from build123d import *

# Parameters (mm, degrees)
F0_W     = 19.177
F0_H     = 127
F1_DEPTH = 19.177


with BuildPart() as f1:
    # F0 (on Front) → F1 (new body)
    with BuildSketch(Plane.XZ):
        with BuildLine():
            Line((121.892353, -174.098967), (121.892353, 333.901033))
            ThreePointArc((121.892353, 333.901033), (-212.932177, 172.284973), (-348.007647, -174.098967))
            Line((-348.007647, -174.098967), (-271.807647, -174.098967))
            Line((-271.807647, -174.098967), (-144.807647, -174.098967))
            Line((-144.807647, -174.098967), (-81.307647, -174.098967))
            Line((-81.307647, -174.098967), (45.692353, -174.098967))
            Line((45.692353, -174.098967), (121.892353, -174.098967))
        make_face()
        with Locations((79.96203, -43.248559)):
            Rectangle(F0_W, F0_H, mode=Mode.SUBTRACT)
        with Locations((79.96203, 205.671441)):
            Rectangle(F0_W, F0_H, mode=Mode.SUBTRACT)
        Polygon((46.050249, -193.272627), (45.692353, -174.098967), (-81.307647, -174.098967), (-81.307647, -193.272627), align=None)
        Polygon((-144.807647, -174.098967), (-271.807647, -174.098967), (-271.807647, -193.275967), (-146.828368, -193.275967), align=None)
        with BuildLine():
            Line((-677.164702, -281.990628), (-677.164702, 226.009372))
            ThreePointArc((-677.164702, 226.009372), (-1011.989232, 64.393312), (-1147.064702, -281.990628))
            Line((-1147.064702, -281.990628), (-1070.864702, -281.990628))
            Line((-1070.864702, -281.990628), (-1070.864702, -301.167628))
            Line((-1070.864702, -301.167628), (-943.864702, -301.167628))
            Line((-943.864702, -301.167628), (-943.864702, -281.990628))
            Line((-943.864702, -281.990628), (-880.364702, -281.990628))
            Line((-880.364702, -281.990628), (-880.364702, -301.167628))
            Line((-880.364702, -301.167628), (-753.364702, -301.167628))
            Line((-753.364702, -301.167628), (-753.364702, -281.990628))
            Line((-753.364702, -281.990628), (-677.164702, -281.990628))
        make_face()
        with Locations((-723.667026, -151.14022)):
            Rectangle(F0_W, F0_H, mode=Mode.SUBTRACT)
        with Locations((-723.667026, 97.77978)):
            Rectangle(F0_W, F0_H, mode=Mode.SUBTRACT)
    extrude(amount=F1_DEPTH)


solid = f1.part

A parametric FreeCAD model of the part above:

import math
import FreeCAD as App
import Part
import Sketcher

V = App.Vector
Q = App.Units.Quantity

doc = App.newDocument("Part")
body = doc.addObject("PartDesign::Body", "Body")
body.AllowCompound = True

sketch1 = body.newObject("Sketcher::SketchObject", "Sketch")
sketch1.AttachmentSupport = (doc.getObject("XZ_Plane"), [""])
sketch1.MapMode = "FlatFace"
sketch1.addGeometry([
    Part.LineSegment(V(121.892353, -174.098967, 0), V(121.892353, 333.901033, 0)),
    Part.ArcOfCircle(Part.Circle(V(159.990338, -172.668353, 0), V(0, 0, 1), 507.999999), math.radians(94.300994), math.radians(180.161355)),
    Part.LineSegment(V(-348.007647, -174.098967, 0), V(-271.807647, -174.098967, 0)),
    Part.LineSegment(V(-271.807647, -174.098967, 0), V(-271.807647, -193.275967, 0)),
    Part.LineSegment(V(-271.807647, -193.275967, 0), V(-146.828368, -193.275967, 0)),
    Part.LineSegment(V(-146.828368, -193.275967, 0), V(-144.807647, -174.098967, 0)),
    Part.LineSegment(V(-144.807647, -174.098967, 0), V(-81.307647, -174.098967, 0)),
    Part.LineSegment(V(-81.307647, -174.098967, 0), V(-81.307647, -193.272627, 0)),
    Part.LineSegment(V(-81.307647, -193.272627, 0), V(46.050249, -193.272627, 0)),
    Part.LineSegment(V(46.050249, -193.272627, 0), V(45.692353, -174.098967, 0)),
    Part.LineSegment(V(45.692353, -174.098967, 0), V(121.892353, -174.098967, 0)),
    Part.LineSegment(V(89.55053, -106.748559, 0), V(70.37353, -106.748559, 0)),
    Part.LineSegment(V(70.37353, -106.748559, 0), V(70.37353, 20.251441, 0)),
    Part.LineSegment(V(70.37353, 20.251441, 0), V(89.55053, 20.251441, 0)),
    Part.LineSegment(V(89.55053, 20.251441, 0), V(89.55053, -106.748559, 0)),
    Part.LineSegment(V(89.55053, 142.171441, 0), V(70.37353, 142.171441, 0)),
    Part.LineSegment(V(70.37353, 142.171441, 0), V(70.37353, 269.171441, 0)),
    Part.LineSegment(V(70.37353, 269.171441, 0), V(89.55053, 269.171441, 0)),
    Part.LineSegment(V(89.55053, 269.171441, 0), V(89.55053, 142.171441, 0)),
    Part.LineSegment(V(-677.164702, -281.990628, 0), V(-677.164702, 226.009372, 0)),
    Part.ArcOfCircle(Part.Circle(V(-639.066717, -280.560014, 0), V(0, 0, 1), 507.999999), math.radians(94.300994), math.radians(180.161355)),
    Part.LineSegment(V(-1147.064702, -281.990628, 0), V(-1070.864702, -281.990628, 0)),
    Part.LineSegment(V(-1070.864702, -281.990628, 0), V(-1070.864702, -301.167628, 0)),
    Part.LineSegment(V(-1070.864702, -301.167628, 0), V(-943.864702, -301.167628, 0)),
    Part.LineSegment(V(-943.864702, -301.167628, 0), V(-943.864702, -281.990628, 0)),
    Part.LineSegment(V(-943.864702, -281.990628, 0), V(-880.364702, -281.990628, 0)),
    Part.LineSegment(V(-880.364702, -281.990628, 0), V(-880.364702, -301.167628, 0)),
    Part.LineSegment(V(-880.364702, -301.167628, 0), V(-753.364702, -301.167628, 0)),
    Part.LineSegment(V(-753.364702, -301.167628, 0), V(-753.364702, -281.990628, 0)),
    Part.LineSegment(V(-753.364702, -281.990628, 0), V(-677.164702, -281.990628, 0)),
    Part.LineSegment(V(-714.078526, -214.64022, 0), V(-733.255526, -214.64022, 0)),
    Part.LineSegment(V(-733.255526, -214.64022, 0), V(-733.255526, -87.64022, 0)),
    Part.LineSegment(V(-733.255526, -87.64022, 0), V(-714.078526, -87.64022, 0)),
    Part.LineSegment(V(-714.078526, -87.64022, 0), V(-714.078526, -214.64022, 0)),
    Part.LineSegment(V(-714.078526, 34.27978, 0), V(-733.255526, 34.27978, 0)),
    Part.LineSegment(V(-733.255526, 34.27978, 0), V(-733.255526, 161.27978, 0)),
    Part.LineSegment(V(-733.255526, 161.27978, 0), V(-714.078526, 161.27978, 0)),
    Part.LineSegment(V(-714.078526, 161.27978, 0), V(-714.078526, 34.27978, 0)),
], False)
sketch1.addConstraint([
    Sketcher.Constraint("Coincident", 0, 2, 1, 1),
    Sketcher.Constraint("Coincident", 1, 2, 2, 1),
    Sketcher.Constraint("Coincident", 2, 2, 3, 1),
    Sketcher.Constraint("Coincident", 3, 2, 4, 1),
    Sketcher.Constraint("Coincident", 4, 2, 5, 1),
    Sketcher.Constraint("Coincident", 5, 2, 6, 1),
    Sketcher.Constraint("Coincident", 6, 2, 7, 1),
    Sketcher.Constraint("Coincident", 7, 2, 8, 1),
    Sketcher.Constraint("Coincident", 8, 2, 9, 1),
    Sketcher.Constraint("Coincident", 9, 2, 10, 1),
    Sketcher.Constraint("Coincident", 10, 2, 0, 1),
    Sketcher.Constraint("Coincident", 11, 2, 12, 1),
    Sketcher.Constraint("Coincident", 12, 2, 13, 1),
    Sketcher.Constraint("Coincident", 13, 2, 14, 1),
    Sketcher.Constraint("Coincident", 14, 2, 11, 1),
    Sketcher.Constraint("Coincident", 15, 2, 16, 1),
    Sketcher.Constraint("Coincident", 16, 2, 17, 1),
    Sketcher.Constraint("Coincident", 17, 2, 18, 1),
    Sketcher.Constraint("Coincident", 18, 2, 15, 1),
    Sketcher.Constraint("Coincident", 19, 2, 20, 1),
    Sketcher.Constraint("Coincident", 20, 2, 21, 1),
    Sketcher.Constraint("Coincident", 21, 2, 22, 1),
    Sketcher.Constraint("Coincident", 22, 2, 23, 1),
    Sketcher.Constraint("Coincident", 23, 2, 24, 1),
    Sketcher.Constraint("Coincident", 24, 2, 25, 1),
    Sketcher.Constraint("Coincident", 25, 2, 26, 1),
    Sketcher.Constraint("Coincident", 26, 2, 27, 1),
    Sketcher.Constraint("Coincident", 27, 2, 28, 1),
    Sketcher.Constraint("Coincident", 28, 2, 29, 1),
    Sketcher.Constraint("Coincident", 29, 2, 19, 1),
    Sketcher.Constraint("Coincident", 30, 2, 31, 1),
    Sketcher.Constraint("Coincident", 31, 2, 32, 1),
    Sketcher.Constraint("Coincident", 32, 2, 33, 1),
    Sketcher.Constraint("Coincident", 33, 2, 30, 1),
    Sketcher.Constraint("Coincident", 34, 2, 35, 1),
    Sketcher.Constraint("Coincident", 35, 2, 36, 1),
    Sketcher.Constraint("Coincident", 36, 2, 37, 1),
    Sketcher.Constraint("Coincident", 37, 2, 34, 1),
    Sketcher.Constraint("Vertical", 0),
    Sketcher.Constraint("Horizontal", 2),
    Sketcher.Constraint("Vertical", 3),
    Sketcher.Constraint("Horizontal", 4),
    Sketcher.Constraint("Horizontal", 6),
    Sketcher.Constraint("Vertical", 7),
    Sketcher.Constraint("Horizontal", 8),
    Sketcher.Constraint("Horizontal", 10),
    Sketcher.Constraint("Horizontal", 11),
    Sketcher.Constraint("Vertical", 12),
    Sketcher.Constraint("Horizontal", 13),
    Sketcher.Constraint("Vertical", 14),
    Sketcher.Constraint("Horizontal", 15),
    Sketcher.Constraint("Vertical", 16),
    Sketcher.Constraint("Horizontal", 17),
    Sketcher.Constraint("Vertical", 18),
    Sketcher.Constraint("Vertical", 19),
    Sketcher.Constraint("Horizontal", 21),
    Sketcher.Constraint("Vertical", 22),
    Sketcher.Constraint("Horizontal", 23),
    Sketcher.Constraint("Vertical", 24),
    Sketcher.Constraint("Horizontal", 25),
    Sketcher.Constraint("Vertical", 26),
    Sketcher.Constraint("Horizontal", 27),
    Sketcher.Constraint("Vertical", 28),
    Sketcher.Constraint("Horizontal", 29),
    Sketcher.Constraint("Horizontal", 30),
    Sketcher.Constraint("Vertical", 31),
    Sketcher.Constraint("Horizontal", 32),
    Sketcher.Constraint("Vertical", 33),
    Sketcher.Constraint("Horizontal", 34),
    Sketcher.Constraint("Vertical", 35),
    Sketcher.Constraint("Horizontal", 36),
    Sketcher.Constraint("Vertical", 37),
    Sketcher.Constraint("Equal", 1, 20),
    Sketcher.Constraint("Horizontal", 2, 2, 5, 2),
    Sketcher.Constraint("Horizontal", 6, 2, 9, 2),
    Sketcher.Constraint("Horizontal", 21, 2, 24, 2),
    Sketcher.Constraint("Horizontal", 23, 2, 26, 2),
    Sketcher.Constraint("Horizontal", 25, 2, 28, 2),
    Sketcher.Constraint("Vertical", 12, 2, 15, 2),
    Sketcher.Constraint("Vertical", 14, 2, 17, 2),
    Sketcher.Constraint("Vertical", 31, 2, 34, 2),
    Sketcher.Constraint("Vertical", 33, 2, 36, 2),
    Sketcher.Constraint("Equal", 2, 10),
    Sketcher.Constraint("Equal", 10, 21),
    Sketcher.Constraint("Equal", 6, 25),
    Sketcher.Constraint("Equal", 23, 27),
    Sketcher.Constraint("Equal", 21, 29),
    Sketcher.Constraint("Equal", 17, 30),
    Sketcher.Constraint("Equal", 36, 3),
    Sketcher.Constraint("Equal", 27, 12),
    Sketcher.Constraint("Equal", 14, 16),
    Sketcher.Constraint("Equal", 0, 19),
    Sketcher.Constraint("Equal", 3, 22),
    Sketcher.Constraint("Equal", 18, 31),
    Sketcher.Constraint("Equal", 33, 35),
    Sketcher.Constraint("Radius", 1, Q("20 in")),
    Sketcher.Constraint("DistanceX", 2, 1, 2, 2, Q("3 in")),
    Sketcher.Constraint("DistanceX", 23, 1, 23, 2, Q("5 in")),
    Sketcher.Constraint("DistanceY", 0, 1, 0, 2, Q("20 in")),
    Sketcher.Constraint("DistanceX", 6, 1, 6, 2, Q("2.5 in")),
    Sketcher.Constraint("DistanceX", 2, 2, 5, 2, Q("5 in")),
    Sketcher.Constraint("DistanceX", 6, 2, 9, 2, Q("5 in")),
    Sketcher.Constraint("DistanceY", 12, 2, 15, 2, Q("4.8 in")),
    Sketcher.Constraint("DistanceY", 31, 2, 34, 2, Q("4.8 in")),
    Sketcher.Constraint("DistanceX", 11, 2, 11, 1, Q("0.755 in")),
    Sketcher.Constraint("Distance", 9, Q("0.755 in")),
    Sketcher.Constraint("DistanceX", 9, 2, 11, 2, Q("0.9716999 in")),
    Sketcher.Constraint("DistanceX", 28, 2, 30, 2, Q("0.7916998 in")),
    Sketcher.Constraint("DistanceX", 4, 1, 4, 2, 124.979279),
    Sketcher.Constraint("DistanceY", 7, 2, 7, 1, 19.17366),
    Sketcher.Constraint("DistanceX", 19, 2, -1, 1, 677.164702),
    Sketcher.Constraint("DistanceX", -1, 1, 1, 3, 159.990338),
    Sketcher.Constraint("DistanceY", 11, 2, -1, 1, 106.748559),
    Sketcher.Constraint("DistanceY", 21, 2, -1, 1, 281.990628),
    Sketcher.Constraint("DistanceY", 30, 2, -1, 1, 214.64022),
    Sketcher.Constraint("DistanceY", 20, 3, 1, 3, 107.891661),
])
pad1 = body.newObject("PartDesign::Pad", "Pad")
pad1.Profile = sketch1
pad1.Length = Q("0.755 in")

doc.recompute()
